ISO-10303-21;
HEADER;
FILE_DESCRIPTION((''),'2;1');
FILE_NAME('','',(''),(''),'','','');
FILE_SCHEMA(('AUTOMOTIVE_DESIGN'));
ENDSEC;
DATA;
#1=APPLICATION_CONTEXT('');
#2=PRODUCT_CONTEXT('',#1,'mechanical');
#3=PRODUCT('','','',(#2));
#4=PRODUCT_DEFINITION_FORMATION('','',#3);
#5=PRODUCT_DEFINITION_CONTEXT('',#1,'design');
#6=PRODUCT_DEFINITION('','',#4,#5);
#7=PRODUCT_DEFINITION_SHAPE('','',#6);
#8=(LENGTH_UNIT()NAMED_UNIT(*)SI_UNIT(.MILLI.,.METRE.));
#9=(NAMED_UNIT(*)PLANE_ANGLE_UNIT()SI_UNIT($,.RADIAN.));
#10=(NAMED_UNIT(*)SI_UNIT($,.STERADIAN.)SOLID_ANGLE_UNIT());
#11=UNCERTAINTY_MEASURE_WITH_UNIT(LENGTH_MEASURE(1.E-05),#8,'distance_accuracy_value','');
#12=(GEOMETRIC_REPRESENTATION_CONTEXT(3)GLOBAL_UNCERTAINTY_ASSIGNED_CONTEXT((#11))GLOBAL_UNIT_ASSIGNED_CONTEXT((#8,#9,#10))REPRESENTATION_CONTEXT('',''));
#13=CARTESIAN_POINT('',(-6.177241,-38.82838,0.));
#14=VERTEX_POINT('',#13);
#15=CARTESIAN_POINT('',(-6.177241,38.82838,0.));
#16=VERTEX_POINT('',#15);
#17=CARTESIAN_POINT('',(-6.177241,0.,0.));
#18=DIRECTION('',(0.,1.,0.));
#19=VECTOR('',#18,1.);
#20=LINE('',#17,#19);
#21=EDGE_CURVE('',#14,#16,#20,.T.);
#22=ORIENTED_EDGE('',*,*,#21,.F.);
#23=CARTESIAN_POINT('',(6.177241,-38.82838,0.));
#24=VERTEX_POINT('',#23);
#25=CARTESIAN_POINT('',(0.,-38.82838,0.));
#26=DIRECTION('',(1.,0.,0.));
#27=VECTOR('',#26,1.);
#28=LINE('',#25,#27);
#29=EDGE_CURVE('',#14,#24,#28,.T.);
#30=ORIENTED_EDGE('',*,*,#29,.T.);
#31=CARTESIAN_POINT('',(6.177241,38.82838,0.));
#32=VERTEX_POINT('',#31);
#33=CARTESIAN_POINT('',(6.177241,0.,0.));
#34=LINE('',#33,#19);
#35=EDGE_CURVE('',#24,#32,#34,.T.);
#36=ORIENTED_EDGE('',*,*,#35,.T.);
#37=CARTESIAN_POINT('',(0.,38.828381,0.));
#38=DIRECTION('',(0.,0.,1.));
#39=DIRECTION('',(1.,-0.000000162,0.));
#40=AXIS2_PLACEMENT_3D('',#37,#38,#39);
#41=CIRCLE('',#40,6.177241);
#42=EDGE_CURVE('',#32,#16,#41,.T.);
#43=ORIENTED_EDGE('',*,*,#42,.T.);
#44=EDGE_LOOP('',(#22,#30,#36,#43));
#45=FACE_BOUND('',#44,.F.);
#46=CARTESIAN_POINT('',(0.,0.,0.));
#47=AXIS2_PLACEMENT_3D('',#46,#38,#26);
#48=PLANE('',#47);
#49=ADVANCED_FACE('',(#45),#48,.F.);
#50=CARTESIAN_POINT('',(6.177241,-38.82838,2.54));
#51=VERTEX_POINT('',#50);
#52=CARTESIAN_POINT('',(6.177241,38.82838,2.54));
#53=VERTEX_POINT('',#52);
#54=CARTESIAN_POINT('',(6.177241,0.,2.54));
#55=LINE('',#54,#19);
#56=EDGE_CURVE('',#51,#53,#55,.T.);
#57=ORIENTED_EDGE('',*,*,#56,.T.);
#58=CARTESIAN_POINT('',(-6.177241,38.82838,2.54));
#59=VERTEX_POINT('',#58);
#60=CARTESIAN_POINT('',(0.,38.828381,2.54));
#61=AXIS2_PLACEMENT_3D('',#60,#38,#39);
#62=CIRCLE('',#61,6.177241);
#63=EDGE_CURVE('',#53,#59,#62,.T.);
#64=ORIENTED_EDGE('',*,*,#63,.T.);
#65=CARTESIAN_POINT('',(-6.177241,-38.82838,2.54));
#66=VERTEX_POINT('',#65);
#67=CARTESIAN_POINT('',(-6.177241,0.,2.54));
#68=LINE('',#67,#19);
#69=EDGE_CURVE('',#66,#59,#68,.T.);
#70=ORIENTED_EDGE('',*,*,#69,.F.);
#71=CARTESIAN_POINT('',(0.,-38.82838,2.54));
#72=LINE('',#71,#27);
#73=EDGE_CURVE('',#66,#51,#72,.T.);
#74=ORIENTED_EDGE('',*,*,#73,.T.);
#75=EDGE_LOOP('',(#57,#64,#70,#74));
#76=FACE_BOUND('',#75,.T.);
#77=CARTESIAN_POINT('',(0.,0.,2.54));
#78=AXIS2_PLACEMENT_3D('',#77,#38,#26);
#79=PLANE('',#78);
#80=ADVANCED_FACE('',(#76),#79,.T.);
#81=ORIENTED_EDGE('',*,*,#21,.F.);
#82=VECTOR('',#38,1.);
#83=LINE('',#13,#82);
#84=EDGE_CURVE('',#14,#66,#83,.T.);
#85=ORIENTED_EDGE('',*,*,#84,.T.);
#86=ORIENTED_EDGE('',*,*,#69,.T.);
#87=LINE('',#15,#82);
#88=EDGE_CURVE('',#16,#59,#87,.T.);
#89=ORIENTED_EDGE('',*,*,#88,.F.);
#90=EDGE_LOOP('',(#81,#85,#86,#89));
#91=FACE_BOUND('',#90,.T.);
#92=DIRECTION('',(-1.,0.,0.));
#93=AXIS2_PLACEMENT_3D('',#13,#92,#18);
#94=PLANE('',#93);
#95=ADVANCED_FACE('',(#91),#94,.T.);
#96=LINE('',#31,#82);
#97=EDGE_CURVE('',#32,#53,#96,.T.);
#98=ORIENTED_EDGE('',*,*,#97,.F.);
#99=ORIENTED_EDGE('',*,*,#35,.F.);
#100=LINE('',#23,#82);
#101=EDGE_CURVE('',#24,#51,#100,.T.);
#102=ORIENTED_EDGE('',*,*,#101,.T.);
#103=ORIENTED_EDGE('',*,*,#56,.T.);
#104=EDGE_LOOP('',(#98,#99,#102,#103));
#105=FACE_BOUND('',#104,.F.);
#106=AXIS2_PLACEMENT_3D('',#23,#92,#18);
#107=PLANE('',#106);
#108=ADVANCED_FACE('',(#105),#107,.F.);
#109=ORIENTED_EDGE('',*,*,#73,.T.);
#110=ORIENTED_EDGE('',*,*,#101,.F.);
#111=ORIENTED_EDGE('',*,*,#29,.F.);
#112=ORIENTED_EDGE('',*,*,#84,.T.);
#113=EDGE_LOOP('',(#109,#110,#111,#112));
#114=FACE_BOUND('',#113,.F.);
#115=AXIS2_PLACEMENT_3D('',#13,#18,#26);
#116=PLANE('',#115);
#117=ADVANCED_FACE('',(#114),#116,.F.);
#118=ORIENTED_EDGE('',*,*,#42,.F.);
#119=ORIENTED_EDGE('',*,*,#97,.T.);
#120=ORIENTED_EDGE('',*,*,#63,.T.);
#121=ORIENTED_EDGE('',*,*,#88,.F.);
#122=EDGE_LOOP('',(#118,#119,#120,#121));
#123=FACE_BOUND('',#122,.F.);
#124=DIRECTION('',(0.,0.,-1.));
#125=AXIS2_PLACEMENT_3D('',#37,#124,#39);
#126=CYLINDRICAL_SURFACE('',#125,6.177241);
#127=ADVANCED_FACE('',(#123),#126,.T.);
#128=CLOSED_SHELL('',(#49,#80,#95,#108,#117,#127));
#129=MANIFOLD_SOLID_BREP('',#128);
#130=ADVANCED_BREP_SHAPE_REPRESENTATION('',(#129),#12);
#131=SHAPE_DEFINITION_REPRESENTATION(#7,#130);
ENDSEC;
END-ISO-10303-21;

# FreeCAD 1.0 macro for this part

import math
import FreeCAD as App
import Part
import Sketcher
Q = App.Units.Quantity

doc = App.newDocument("Part")
body = doc.addObject("PartDesign::Body", "Body")

# Sketch on XY plane
sketch1 = body.newObject("Sketcher::SketchObject", "Sketch")
sketch1.AttachmentSupport = (doc.getObject("XY_Plane"), [""])
sketch1.MapMode = "FlatFace"
sketch1.addGeometry([
    Part.LineSegment(App.Vector(-6.177241, 38.82838, 0), App.Vector(-6.177241, -38.82838, 0)),
    Part.LineSegment(App.Vector(-6.177241, -38.82838, 0), App.Vector(6.177241, -38.82838, 0)),
    Part.LineSegment(App.Vector(6.177241, -38.82838, 0), App.Vector(6.177241, 38.82838, 0)),
    Part.ArcOfCircle(Part.Circle(App.Vector(0, 38.828381, 0), App.Vector(0, 0, 1), 6.177241), math.radians(-0.000009), math.radians(180.000009)),
], False)
sketch1.addConstraint([
    Sketcher.Constraint("Coincident", 0, 2, 1, 1),
    Sketcher.Constraint("Coincident", 1, 2, 2, 1),
    Sketcher.Constraint("Tangent", 2, 2, 3, 1),
    Sketcher.Constraint("Tangent", 3, 2, 0, 1),
    Sketcher.Constraint("Vertical", 0),
    Sketcher.Constraint("Horizontal", 1),
    Sketcher.Constraint("Vertical", 2),
    Sketcher.Constraint("Symmetric", 0, 2, 2, 2, -1, 1),
    Sketcher.Constraint("Radius", 3, Q("6.177241 mm")),
    Sketcher.Constraint("DistanceY", 0, 2, 0, 1, Q("77.65676 mm")),
])
pad1 = body.newObject("PartDesign::Pad", "Pad")
pad1.Profile = sketch1
pad1.Length = Q("0.1 in")

doc.recompute()
